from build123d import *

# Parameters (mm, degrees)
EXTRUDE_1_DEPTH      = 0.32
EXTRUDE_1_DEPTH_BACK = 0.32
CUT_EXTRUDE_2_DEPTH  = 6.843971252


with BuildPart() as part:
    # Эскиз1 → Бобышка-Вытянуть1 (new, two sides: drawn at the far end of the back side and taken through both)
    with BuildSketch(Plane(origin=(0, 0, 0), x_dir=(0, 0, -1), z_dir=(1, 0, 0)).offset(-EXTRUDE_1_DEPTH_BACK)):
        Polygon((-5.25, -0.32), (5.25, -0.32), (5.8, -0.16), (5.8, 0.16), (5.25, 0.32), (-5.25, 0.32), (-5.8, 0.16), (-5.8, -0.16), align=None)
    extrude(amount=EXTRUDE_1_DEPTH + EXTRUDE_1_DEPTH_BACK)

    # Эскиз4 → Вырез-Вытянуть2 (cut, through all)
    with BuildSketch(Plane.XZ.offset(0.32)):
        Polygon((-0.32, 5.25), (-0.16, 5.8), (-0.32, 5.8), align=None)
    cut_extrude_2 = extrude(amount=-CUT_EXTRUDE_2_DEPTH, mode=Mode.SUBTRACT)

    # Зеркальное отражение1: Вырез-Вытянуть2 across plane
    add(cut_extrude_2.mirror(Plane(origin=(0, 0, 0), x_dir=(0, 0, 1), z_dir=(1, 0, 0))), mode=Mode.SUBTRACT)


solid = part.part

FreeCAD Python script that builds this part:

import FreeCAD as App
import Part
import Sketcher
from FreeCAD import Vector
Q = App.Units.Quantity


def add_polygon(sketch, points):
    """Adds a closed chain of lines whose ends are joined by coincident constraints."""
    first, n = sketch.GeometryCount, len(points)
    for a, b in zip(points, points[1:] + points[:1]):
        sketch.addGeometry(Part.LineSegment(App.Vector(*a, 0), App.Vector(*b, 0)), False)
    for i in range(n):
        sketch.addConstraint(Sketcher.Constraint("Coincident", first + i, 2, first + (i + 1) % n, 1))

doc = App.newDocument("Part")
params = doc.addObject("Spreadsheet::Sheet", "Params")
for row, (alias, value) in enumerate([
    ("sketch1_height", "10.5 mm"),
    ("sketch1_width", "0.32 mm"),
    ("pad1_length", "0.32 mm"),
    ("pad1_length2", "0.32 mm"),
    ("sketch2_width", "0.16 mm"),
    ("sketch2_height", "0.55 mm"),
], start=1):
    params.set(f"A{row}", alias)
    params.set(f"B{row}", "=" + value)
    params.setAlias(f"B{row}", alias)

body = doc.addObject("PartDesign::Body", "Body")

sketch1 = body.newObject("Sketcher::SketchObject", "Sketch")
sketch1.AttachmentSupport = (doc.getObject("YZ_Plane"), [""])
sketch1.MapMode = "FlatFace"
add_polygon(sketch1, [(-0.32, 5.25), (-0.32, -5.25), (-0.16, -5.8), (0.16, -5.8), (0.32, -5.25), (0.32, 5.25), (0.16, 5.8), (-0.16, 5.8)])
sketch1.addConstraint([
    Sketcher.Constraint("Vertical", 0),
    Sketcher.Constraint("Horizontal", 2),
    Sketcher.Constraint("Vertical", 4),
    Sketcher.Constraint("Horizontal", 6),
    Sketcher.Constraint("Symmetric", 0, 2, 4, 2, -1, 1),
    Sketcher.Constraint("Symmetric", 1, 2, 5, 2, -1, 1),
    Sketcher.Constraint("Parallel", 3, 7),
    Sketcher.Constraint("Horizontal", 0, 2, 3, 2),
    Sketcher.Constraint("Horizontal", 4, 2, 7, 2),
    Sketcher.Constraint("Vertical", 2, 2, 5, 2),
    Sketcher.Constraint("DistanceY", 0, 2, 0, 1, Q("10.5 mm")),
    Sketcher.Constraint("DistanceX", 2, 1, 2, 2, Q("0.32 mm")),
    Sketcher.Constraint("DistanceY", 1, 2, -1, 1, Q("5.8 mm")),
    Sketcher.Constraint("DistanceX", 0, 2, -1, 1, Q("0.32 mm")),
])
sketch1.setExpression("Constraints[18]", "Params.sketch1_height")
sketch1.setExpression("Constraints[19]", "Params.sketch1_width")
pad1 = body.newObject("PartDesign::Pad", "Pad")
pad1.Profile = sketch1
pad1.Type = "TwoLengths"
pad1.setExpression("Length", "Params.pad1_length")
pad1.setExpression("Length2", "Params.pad1_length2")

sketch2 = body.newObject("Sketcher::SketchObject", "Sketch001")
sketch2.AttachmentSupport = (doc.getObject("XZ_Plane"), [""])
sketch2.MapMode = "FlatFace"
sketch2.AttachmentOffset = App.Placement(Vector(0, 0, 0.32), App.Rotation())
add_polygon(sketch2, [(-0.32, 5.25), (-0.16, 5.8), (-0.32, 5.8)])
sketch2.addConstraint([
    Sketcher.Constraint("Horizontal", 1),
    Sketcher.Constraint("Vertical", 2),
    Sketcher.Constraint("DistanceX", 1, 2, 1, 1, Q("0.16 mm")),
    Sketcher.Constraint("DistanceY", 2, 2, 2, 1, Q("0.55 mm")),
    Sketcher.Constraint("DistanceY", -1, 1, 0, 2, Q("5.8 mm")),
    Sketcher.Constraint("DistanceX", 0, 2, -1, 1, Q("0.16 mm")),
])
sketch2.setExpression("Constraints[5]", "Params.sketch2_width")
sketch2.setExpression("Constraints[6]", "Params.sketch2_height")
pocket1 = body.newObject("PartDesign::Pocket", "Pocket")
pocket1.Profile = sketch2
pocket1.Type = "ThroughAll"
doc.recompute()

mirrored = body.newObject("PartDesign::Mirrored", "Mirrored")
mirrored.Originals = [pocket1]
mirrored.MirrorPlane = (doc.getObject("YZ_Plane"), [""])
body.Tip = mirrored

doc.recompute()
